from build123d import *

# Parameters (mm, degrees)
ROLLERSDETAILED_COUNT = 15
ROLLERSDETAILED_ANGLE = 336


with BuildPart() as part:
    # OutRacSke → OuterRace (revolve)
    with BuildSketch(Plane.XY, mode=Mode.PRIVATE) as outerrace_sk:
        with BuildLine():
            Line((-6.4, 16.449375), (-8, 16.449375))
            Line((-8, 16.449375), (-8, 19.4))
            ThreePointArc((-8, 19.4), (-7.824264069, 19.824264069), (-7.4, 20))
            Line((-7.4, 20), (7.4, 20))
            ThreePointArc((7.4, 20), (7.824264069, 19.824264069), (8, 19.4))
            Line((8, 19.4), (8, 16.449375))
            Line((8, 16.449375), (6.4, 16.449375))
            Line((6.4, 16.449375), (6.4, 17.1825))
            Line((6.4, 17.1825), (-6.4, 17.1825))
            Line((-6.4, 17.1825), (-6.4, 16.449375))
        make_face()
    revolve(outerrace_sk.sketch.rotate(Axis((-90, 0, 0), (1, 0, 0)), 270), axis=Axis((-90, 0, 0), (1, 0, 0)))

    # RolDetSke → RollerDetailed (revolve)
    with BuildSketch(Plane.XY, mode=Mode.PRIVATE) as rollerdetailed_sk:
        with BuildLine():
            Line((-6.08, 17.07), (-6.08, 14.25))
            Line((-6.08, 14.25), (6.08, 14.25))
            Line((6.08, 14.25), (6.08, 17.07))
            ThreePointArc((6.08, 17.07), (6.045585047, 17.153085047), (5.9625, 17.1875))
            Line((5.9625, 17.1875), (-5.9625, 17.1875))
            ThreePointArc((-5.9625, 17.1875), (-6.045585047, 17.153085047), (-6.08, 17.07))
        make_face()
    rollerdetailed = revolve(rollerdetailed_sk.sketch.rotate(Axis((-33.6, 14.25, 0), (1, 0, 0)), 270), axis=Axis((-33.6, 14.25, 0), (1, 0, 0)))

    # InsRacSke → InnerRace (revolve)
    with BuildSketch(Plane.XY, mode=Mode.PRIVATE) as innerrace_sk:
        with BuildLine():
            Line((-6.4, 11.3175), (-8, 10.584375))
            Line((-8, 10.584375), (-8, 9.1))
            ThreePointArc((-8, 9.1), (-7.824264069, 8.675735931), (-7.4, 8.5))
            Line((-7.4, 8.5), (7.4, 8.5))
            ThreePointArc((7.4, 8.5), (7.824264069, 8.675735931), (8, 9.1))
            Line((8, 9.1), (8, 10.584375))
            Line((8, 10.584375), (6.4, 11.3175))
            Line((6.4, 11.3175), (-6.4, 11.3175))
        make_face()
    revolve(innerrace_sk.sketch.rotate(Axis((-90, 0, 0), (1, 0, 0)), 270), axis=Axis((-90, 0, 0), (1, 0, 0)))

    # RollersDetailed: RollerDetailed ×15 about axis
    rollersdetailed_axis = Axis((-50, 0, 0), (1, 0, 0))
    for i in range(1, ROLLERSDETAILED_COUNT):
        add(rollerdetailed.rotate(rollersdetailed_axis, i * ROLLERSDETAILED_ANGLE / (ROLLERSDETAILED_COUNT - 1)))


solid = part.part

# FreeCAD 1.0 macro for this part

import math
import FreeCAD as App
import Part
import Sketcher

V = App.Vector

doc = App.newDocument("Part")
body = doc.addObject("PartDesign::Body", "Body")

# Sketch on XY plane
sketch1 = doc.addObject("Sketcher::SketchObject", "Sketch")
body.addObject(sketch1)
sketch1.AttachmentSupport = (doc.XY_Plane, [""])
sketch1.MapMode = "FlatFace"
sketch1.addGeometry(Part.LineSegment(V(-8, 16.4, 0), V(-6.4, 16.4, 0)), False)
sketch1.addGeometry(Part.LineSegment(V(-6.4, 16.4, 0), V(-6.4, 17.2, 0)), False)
sketch1.addGeometry(Part.LineSegment(V(-6.4, 17.2, 0), V(6.4, 17.2, 0)), False)
sketch1.addGeometry(Part.LineSegment(V(6.4, 17.2, 0), V(6.4, 16.4, 0)), False)
sketch1.addGeometry(Part.LineSegment(V(6.4, 16.4, 0), V(8, 16.4, 0)), False)
sketch1.addGeometry(Part.LineSegment(V(8, 16.4, 0), V(8, 19.4, 0)), False)
sketch1.addGeometry(Part.ArcOfCircle(Part.Circle(V(7.4, 19.4, 0), V(0, 0, 1), 0.6), math.radians(0), math.radians(90)), False)
sketch1.addGeometry(Part.LineSegment(V(7.4, 20, 0), V(-7.4, 20, 0)), False)
sketch1.addGeometry(Part.ArcOfCircle(Part.Circle(V(-7.4, 19.4, 0), V(0, 0, 1), 0.6), math.radians(90), math.radians(180)), False)
sketch1.addGeometry(Part.LineSegment(V(-8, 19.4, 0), V(-8, 16.4, 0)), False)
sketch1.addConstraint(Sketcher.Constraint("Coincident", 0, 2, 1, 1))
sketch1.addConstraint(Sketcher.Constraint("Coincident", 1, 2, 2, 1))
sketch1.addConstraint(Sketcher.Constraint("Coincident", 2, 2, 3, 1))
sketch1.addConstraint(Sketcher.Constraint("Coincident", 3, 2, 4, 1))
sketch1.addConstraint(Sketcher.Constraint("Coincident", 4, 2, 5, 1))
sketch1.addConstraint(Sketcher.Constraint("Tangent", 5, 2, 6, 1))
sketch1.addConstraint(Sketcher.Constraint("Tangent", 6, 2, 7, 1))
sketch1.addConstraint(Sketcher.Constraint("Tangent", 7, 2, 8, 1))
sketch1.addConstraint(Sketcher.Constraint("Tangent", 8, 2, 9, 1))
sketch1.addConstraint(Sketcher.Constraint("Coincident", 9, 2, 0, 1))
sketch1.addConstraint(Sketcher.Constraint("Horizontal", 0))
sketch1.addConstraint(Sketcher.Constraint("Vertical", 1))
sketch1.addConstraint(Sketcher.Constraint("Horizontal", 2))
sketch1.addConstraint(Sketcher.Constraint("Vertical", 3))
sketch1.addConstraint(Sketcher.Constraint("Horizontal", 4))
sketch1.addConstraint(Sketcher.Constraint("Vertical", 5))
sketch1.addConstraint(Sketcher.Constraint("Horizontal", 7))
sketch1.addConstraint(Sketcher.Constraint("Vertical", 9))
sketch1.addConstraint(Sketcher.Constraint("Equal", 6, 8))
sketch1.addConstraint(Sketcher.Constraint("Symmetric", 0, 2, 3, 2, -2))
sketch1.addConstraint(Sketcher.Constraint("Equal", 0, 4))
sketch1.addConstraint(Sketcher.Constraint("Radius", 6, 0.6))
sketch1.addConstraint(Sketcher.Constraint("DistanceX", 0, 1, 0, 2, 1.6))
sketch1.addConstraint(Sketcher.Constraint("DistanceX", 2, 1, 2, 2, 12.8))
sketch1.addConstraint(Sketcher.Constraint("DistanceY", -1, 1, 6, 2, 20.0))
sketch1.addConstraint(Sketcher.Constraint("DistanceY", -1, 1, 1, 2, 17.1825))
sketch1.addConstraint(Sketcher.Constraint("DistanceY", 1, 1, 1, 2, 0.733125))
revolution = doc.addObject("PartDesign::Revolution", "Revolution")
body.addObject(revolution)
revolution.Profile = sketch1
revolution.ReferenceAxis = (sketch1, ["H_Axis"])
revolution.Angle = 360

# Sketch on XY plane
sketch2 = doc.addObject("Sketcher::SketchObject", "Sketch001")
body.addObject(sketch2)
sketch2.AttachmentSupport = (doc.XY_Plane, [""])
sketch2.MapMode = "FlatFace"
sketch2.addGeometry(Part.LineSegment(V(-6.08, 17.07, 0), V(-6.08, 14.25, 0)), False)
sketch2.addGeometry(Part.LineSegment(V(-6.08, 14.25, 0), V(6.08, 14.25, 0)), False)
sketch2.addGeometry(Part.LineSegment(V(6.08, 14.25, 0), V(6.08, 17.07, 0)), False)
sketch2.addGeometry(Part.ArcOfCircle(Part.Circle(V(5.96, 17.07, 0), V(0, 0, 1), 0.12), math.radians(0), math.radians(90)), False)
sketch2.addGeometry(Part.LineSegment(V(5.96, 17.19, 0), V(-5.96, 17.19, 0)), False)
sketch2.addGeometry(Part.ArcOfCircle(Part.Circle(V(-5.96, 17.07, 0), V(0, 0, 1), 0.12), math.radians(90), math.radians(180)), False)
sketch2.addGeometry(Part.LineSegment(V(-6.08, 14.25, 0), V(6.08, 14.25, 0)), True)  # axis
sketch2.addConstraint(Sketcher.Constraint("Coincident", 0, 2, 1, 1))
sketch2.addConstraint(Sketcher.Constraint("Coincident", 1, 2, 2, 1))
sketch2.addConstraint(Sketcher.Constraint("Tangent", 2, 2, 3, 1))
sketch2.addConstraint(Sketcher.Constraint("Tangent", 3, 2, 4, 1))
sketch2.addConstraint(Sketcher.Constraint("Tangent", 4, 2, 5, 1))
sketch2.addConstraint(Sketcher.Constraint("Tangent", 5, 2, 0, 1))
sketch2.addConstraint(Sketcher.Constraint("Vertical", 0))
sketch2.addConstraint(Sketcher.Constraint("Horizontal", 1))
sketch2.addConstraint(Sketcher.Constraint("Vertical", 2))
sketch2.addConstraint(Sketcher.Constraint("Horizontal", 4))
sketch2.addConstraint(Sketcher.Constraint("Horizontal", 6))
sketch2.addConstraint(Sketcher.Constraint("Coincident", 6, 1, 0, 2))
sketch2.addConstraint(Sketcher.Constraint("Equal", 3, 5))
sketch2.addConstraint(Sketcher.Constraint("Vertical", 2, 2, 6, 2))
sketch2.addConstraint(Sketcher.Constraint("DistanceX", 1, 1, 1, 2, 12.16))
sketch2.addConstraint(Sketcher.Constraint("DistanceY", 0, 2, 0, 1, 2.82))
sketch2.addConstraint(Sketcher.Constraint("Radius", 3, 0.1175))
sketch2.addConstraint(Sketcher.Constraint("DistanceY", -1, 1, 3, 3, 17.07))
sketch2.addConstraint(Sketcher.Constraint("DistanceX", 0, 2, -1, 1, 6.08))
revolution2 = doc.addObject("PartDesign::Revolution", "Revolution001")
body.addObject(revolution2)
revolution2.Profile = sketch2
revolution2.ReferenceAxis = (sketch2, ["Axis0"])
revolution2.Angle = 360

# Sketch on XY plane
sketch3 = doc.addObject("Sketcher::SketchObject", "Sketch002")
body.addObject(sketch3)
sketch3.AttachmentSupport = (doc.XY_Plane, [""])
sketch3.MapMode = "FlatFace"
sketch3.addGeometry(Part.LineSegment(V(-6.4, 11.3, 0), V(-8, 10.6, 0)), False)
sketch3.addGeometry(Part.LineSegment(V(-8, 10.6, 0), V(-8, 9.1, 0)), False)
sketch3.addGeometry(Part.ArcOfCircle(Part.Circle(V(-7.4, 9.1, 0), V(0, 0, 1), 0.6), math.radians(180), math.radians(270)), False)
sketch3.addGeometry(Part.LineSegment(V(-7.4, 8.5, 0), V(7.4, 8.5, 0)), False)
sketch3.addGeometry(Part.ArcOfCircle(Part.Circle(V(7.4, 9.1, 0), V(0, 0, 1), 0.6), math.radians(-90), math.radians(0)), False)
sketch3.addGeometry(Part.LineSegment(V(8, 9.1, 0), V(8, 10.6, 0)), False)
sketch3.addGeometry(Part.LineSegment(V(8, 10.6, 0), V(6.4, 11.3, 0)), False)
sketch3.addGeometry(Part.LineSegment(V(6.4, 11.3, 0), V(-6.4, 11.3, 0)), False)
sketch3.addConstraint(Sketcher.Constraint("Coincident", 0, 2, 1, 1))
sketch3.addConstraint(Sketcher.Constraint("Tangent", 1, 2, 2, 1))
sketch3.addConstraint(Sketcher.Constraint("Tangent", 2, 2, 3, 1))
sketch3.addConstraint(Sketcher.Constraint("Tangent", 3, 2, 4, 1))
sketch3.addConstraint(Sketcher.Constraint("Tangent", 4, 2, 5, 1))
sketch3.addConstraint(Sketcher.Constraint("Coincident", 5, 2, 6, 1))
sketch3.addConstraint(Sketcher.Constraint("Coincident", 6, 2, 7, 1))
sketch3.addConstraint(Sketcher.Constraint("Coincident", 7, 2, 0, 1))
sketch3.addConstraint(Sketcher.Constraint("Vertical", 1))
sketch3.addConstraint(Sketcher.Constraint("Horizontal", 3))
sketch3.addConstraint(Sketcher.Constraint("Vertical", 5))
sketch3.addConstraint(Sketcher.Constraint("Horizontal", 7))
sketch3.addConstraint(Sketcher.Constraint("Equal", 2, 4))
sketch3.addConstraint(Sketcher.Constraint("Symmetric", 0, 2, 5, 2, -2))
sketch3.addConstraint(Sketcher.Constraint("Equal", 0, 6))
sketch3.addConstraint(Sketcher.Constraint("Radius", 2, 0.6))
sketch3.addConstraint(Sketcher.Constraint("DistanceX", 3, 1, 3, 2, 14.8))
sketch3.addConstraint(Sketcher.Constraint("DistanceX", 7, 2, 7, 1, 12.8))
sketch3.addConstraint(Sketcher.Constraint("DistanceY", -1, 1, 2, 3, 9.1))
sketch3.addConstraint(Sketcher.Constraint("DistanceY", -1, 1, 6, 2, 11.3175))
sketch3.addConstraint(Sketcher.Constraint("DistanceY", 1, 2, 1, 1, 1.484375))
revolution3 = doc.addObject("PartDesign::Revolution", "Revolution002")
body.addObject(revolution3)
revolution3.Profile = sketch3
revolution3.ReferenceAxis = (sketch3, ["H_Axis"])
revolution3.Angle = 360
doc.recompute()

polarpattern = doc.addObject("PartDesign::PolarPattern", "PolarPattern")
body.addObject(polarpattern)
polarpattern.Originals = [revolution2]
polarpattern.Axis = (doc.X_Axis, [""])
polarpattern.Angle = 360
polarpattern.Occurrences = 15
body.Tip = polarpattern

doc.recompute()
